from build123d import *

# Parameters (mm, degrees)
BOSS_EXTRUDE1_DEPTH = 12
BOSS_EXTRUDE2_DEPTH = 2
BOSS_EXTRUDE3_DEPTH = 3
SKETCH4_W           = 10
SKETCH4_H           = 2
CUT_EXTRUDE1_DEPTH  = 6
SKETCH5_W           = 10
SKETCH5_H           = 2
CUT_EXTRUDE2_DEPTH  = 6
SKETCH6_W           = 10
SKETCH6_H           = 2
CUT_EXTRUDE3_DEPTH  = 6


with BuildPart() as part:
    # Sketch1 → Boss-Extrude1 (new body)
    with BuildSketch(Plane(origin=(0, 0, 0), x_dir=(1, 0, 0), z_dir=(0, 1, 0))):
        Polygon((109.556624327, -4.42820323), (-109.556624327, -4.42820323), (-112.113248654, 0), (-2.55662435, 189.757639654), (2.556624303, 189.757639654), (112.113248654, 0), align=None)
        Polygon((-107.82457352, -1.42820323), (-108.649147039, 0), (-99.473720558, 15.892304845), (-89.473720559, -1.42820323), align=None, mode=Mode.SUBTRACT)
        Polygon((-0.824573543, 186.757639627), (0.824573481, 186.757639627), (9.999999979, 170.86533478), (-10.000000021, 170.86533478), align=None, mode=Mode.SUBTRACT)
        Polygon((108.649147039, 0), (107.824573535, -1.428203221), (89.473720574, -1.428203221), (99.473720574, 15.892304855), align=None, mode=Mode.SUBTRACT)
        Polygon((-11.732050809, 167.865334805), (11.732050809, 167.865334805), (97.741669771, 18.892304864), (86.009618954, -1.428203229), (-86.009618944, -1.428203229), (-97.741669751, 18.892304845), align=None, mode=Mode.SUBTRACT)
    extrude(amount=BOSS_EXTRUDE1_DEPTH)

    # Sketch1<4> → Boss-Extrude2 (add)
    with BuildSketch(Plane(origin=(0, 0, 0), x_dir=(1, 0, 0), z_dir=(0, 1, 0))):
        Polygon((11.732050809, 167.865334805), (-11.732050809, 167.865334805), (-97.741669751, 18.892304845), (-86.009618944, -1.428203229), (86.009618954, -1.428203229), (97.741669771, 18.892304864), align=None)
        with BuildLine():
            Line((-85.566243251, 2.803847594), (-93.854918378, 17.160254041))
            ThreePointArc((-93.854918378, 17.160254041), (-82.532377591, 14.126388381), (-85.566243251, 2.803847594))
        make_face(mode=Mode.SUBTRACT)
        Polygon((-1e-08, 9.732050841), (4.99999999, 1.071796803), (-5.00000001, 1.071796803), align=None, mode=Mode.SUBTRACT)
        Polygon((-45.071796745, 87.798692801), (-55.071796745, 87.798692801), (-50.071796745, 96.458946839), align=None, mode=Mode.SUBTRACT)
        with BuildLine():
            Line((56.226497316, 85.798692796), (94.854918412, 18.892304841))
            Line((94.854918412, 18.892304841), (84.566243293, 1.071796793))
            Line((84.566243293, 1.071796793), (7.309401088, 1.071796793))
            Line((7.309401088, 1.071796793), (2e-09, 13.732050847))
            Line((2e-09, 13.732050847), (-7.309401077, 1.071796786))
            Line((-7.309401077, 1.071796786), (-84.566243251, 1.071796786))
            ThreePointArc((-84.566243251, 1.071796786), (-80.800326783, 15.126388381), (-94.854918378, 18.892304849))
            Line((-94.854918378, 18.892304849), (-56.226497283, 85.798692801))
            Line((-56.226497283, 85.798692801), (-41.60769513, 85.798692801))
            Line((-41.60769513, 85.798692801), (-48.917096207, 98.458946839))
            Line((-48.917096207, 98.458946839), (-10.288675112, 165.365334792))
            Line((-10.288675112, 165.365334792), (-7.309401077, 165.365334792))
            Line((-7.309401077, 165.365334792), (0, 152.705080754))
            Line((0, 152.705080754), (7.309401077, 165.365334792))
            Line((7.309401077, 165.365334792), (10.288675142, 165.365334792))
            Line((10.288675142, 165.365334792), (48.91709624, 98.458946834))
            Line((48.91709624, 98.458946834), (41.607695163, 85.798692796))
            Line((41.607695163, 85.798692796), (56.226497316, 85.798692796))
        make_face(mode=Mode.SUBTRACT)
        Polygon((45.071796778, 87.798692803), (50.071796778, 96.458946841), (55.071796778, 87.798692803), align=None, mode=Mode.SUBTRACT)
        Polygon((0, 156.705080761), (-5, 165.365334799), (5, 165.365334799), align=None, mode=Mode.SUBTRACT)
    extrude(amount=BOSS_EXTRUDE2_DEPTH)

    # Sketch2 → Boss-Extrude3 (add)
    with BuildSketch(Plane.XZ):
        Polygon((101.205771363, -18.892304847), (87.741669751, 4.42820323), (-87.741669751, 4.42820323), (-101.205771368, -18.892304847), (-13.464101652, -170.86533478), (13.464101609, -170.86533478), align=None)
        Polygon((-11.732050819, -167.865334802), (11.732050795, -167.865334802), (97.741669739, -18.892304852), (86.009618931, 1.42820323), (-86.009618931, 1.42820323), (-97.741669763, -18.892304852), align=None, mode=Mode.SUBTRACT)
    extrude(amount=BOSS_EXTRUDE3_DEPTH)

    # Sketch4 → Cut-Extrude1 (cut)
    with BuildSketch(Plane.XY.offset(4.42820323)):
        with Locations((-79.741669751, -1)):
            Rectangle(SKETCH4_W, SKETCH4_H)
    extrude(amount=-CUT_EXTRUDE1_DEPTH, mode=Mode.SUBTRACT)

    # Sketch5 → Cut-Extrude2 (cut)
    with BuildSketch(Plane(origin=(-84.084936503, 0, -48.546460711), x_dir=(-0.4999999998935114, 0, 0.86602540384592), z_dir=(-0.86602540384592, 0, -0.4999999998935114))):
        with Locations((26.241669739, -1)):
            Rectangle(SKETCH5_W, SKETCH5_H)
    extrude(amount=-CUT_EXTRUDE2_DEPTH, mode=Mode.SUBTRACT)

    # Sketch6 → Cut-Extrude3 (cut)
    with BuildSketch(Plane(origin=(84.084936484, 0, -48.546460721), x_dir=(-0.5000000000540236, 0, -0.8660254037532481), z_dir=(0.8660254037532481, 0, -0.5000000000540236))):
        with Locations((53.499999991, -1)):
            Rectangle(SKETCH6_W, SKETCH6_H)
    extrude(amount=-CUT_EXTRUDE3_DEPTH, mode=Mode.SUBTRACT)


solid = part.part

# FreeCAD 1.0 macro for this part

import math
import FreeCAD as App
import Part
import Sketcher

V = App.Vector
Q = App.Units.Quantity

doc = App.newDocument("Part")
body = doc.addObject("PartDesign::Body", "Body")

sketch1 = body.newObject("Sketcher::SketchObject", "Sketch")
sketch1.AttachmentSupport = (doc.getObject("XZ_Plane"), [""])
sketch1.MapMode = "FlatFace"
sketch1.addGeometry([
    Part.LineSegment(V(-109.6, 4.4, 0), V(109.6, 4.4, 0)),
    Part.LineSegment(V(109.6, 4.4, 0), V(112.1, 0, 0)),
    Part.LineSegment(V(112.1, 0, 0), V(2.6, -189.8, 0)),
    Part.LineSegment(V(2.6, -189.8, 0), V(-2.6, -189.8, 0)),
    Part.LineSegment(V(-2.6, -189.8, 0), V(-112.1, 0, 0)),
    Part.LineSegment(V(-112.1, 0, 0), V(-109.6, 4.4, 0)),
    Part.LineSegment(V(108.6, 0, 0), V(107.8, 1.4, 0)),
    Part.LineSegment(V(107.8, 1.4, 0), V(89.5, 1.4, 0)),
    Part.LineSegment(V(89.5, 1.4, 0), V(99.5, -15.9, 0)),
    Part.LineSegment(V(99.5, -15.9, 0), V(108.6, 0, 0)),
    Part.LineSegment(V(-11.7, -167.9, 0), V(11.7, -167.9, 0)),
    Part.LineSegment(V(11.7, -167.9, 0), V(97.7, -18.9, 0)),
    Part.LineSegment(V(97.7, -18.9, 0), V(86, 1.4, 0)),
    Part.LineSegment(V(86, 1.4, 0), V(-86, 1.4, 0)),
    Part.LineSegment(V(-86, 1.4, 0), V(-97.7, -18.9, 0)),
    Part.LineSegment(V(-97.7, -18.9, 0), V(-11.7, -167.9, 0)),
    Part.LineSegment(V(-107.8, 1.4, 0), V(-108.6, 0, 0)),
    Part.LineSegment(V(-108.6, 0, 0), V(-99.5, -15.9, 0)),
    Part.LineSegment(V(-99.5, -15.9, 0), V(-89.5, 1.4, 0)),
    Part.LineSegment(V(-89.5, 1.4, 0), V(-107.8, 1.4, 0)),
    Part.LineSegment(V(-0.8, -186.8, 0), V(0.8, -186.8, 0)),
    Part.LineSegment(V(0.8, -186.8, 0), V(10, -170.9, 0)),
    Part.LineSegment(V(10, -170.9, 0), V(-10, -170.9, 0)),
    Part.LineSegment(V(-10, -170.9, 0), V(-0.8, -186.8, 0)),
], False)
sketch1.addConstraint([
    Sketcher.Constraint("Coincident", 0, 2, 1, 1),
    Sketcher.Constraint("Coincident", 1, 2, 2, 1),
    Sketcher.Constraint("Coincident", 2, 2, 3, 1),
    Sketcher.Constraint("Coincident", 3, 2, 4, 1),
    Sketcher.Constraint("Coincident", 4, 2, 5, 1),
    Sketcher.Constraint("Coincident", 5, 2, 0, 1),
    Sketcher.Constraint("Coincident", 6, 2, 7, 1),
    Sketcher.Constraint("Coincident", 7, 2, 8, 1),
    Sketcher.Constraint("Coincident", 8, 2, 9, 1),
    Sketcher.Constraint("Coincident", 9, 2, 6, 1),
    Sketcher.Constraint("Coincident", 10, 2, 11, 1),
    Sketcher.Constraint("Coincident", 11, 2, 12, 1),
    Sketcher.Constraint("Coincident", 12, 2, 13, 1),
    Sketcher.Constraint("Coincident", 13, 2, 14, 1),
    Sketcher.Constraint("Coincident", 14, 2, 15, 1),
    Sketcher.Constraint("Coincident", 15, 2, 10, 1),
    Sketcher.Constraint("Coincident", 16, 2, 17, 1),
    Sketcher.Constraint("Coincident", 17, 2, 18, 1),
    Sketcher.Constraint("Coincident", 18, 2, 19, 1),
    Sketcher.Constraint("Coincident", 19, 2, 16, 1),
    Sketcher.Constraint("Coincident", 20, 2, 21, 1),
    Sketcher.Constraint("Coincident", 21, 2, 22, 1),
    Sketcher.Constraint("Coincident", 22, 2, 23, 1),
    Sketcher.Constraint("Coincident", 23, 2, 20, 1),
    Sketcher.Constraint("Horizontal", 0),
    Sketcher.Constraint("Horizontal", 3),
    Sketcher.Constraint("Horizontal", 7),
    Sketcher.Constraint("Horizontal", 10),
    Sketcher.Constraint("Horizontal", 13),
    Sketcher.Constraint("Horizontal", 19),
    Sketcher.Constraint("Horizontal", 20),
    Sketcher.Constraint("Horizontal", 22),
    Sketcher.Constraint("Symmetric", 1, 2, 4, 2, -1, 1),
    Sketcher.Constraint("Symmetric", 9, 2, 16, 2, -1, 1),
    Sketcher.Constraint("Symmetric", 11, 2, 14, 2, -2),
    Sketcher.Constraint("Symmetric", 8, 2, 17, 2, -2),
    Sketcher.Constraint("Symmetric", 7, 2, 18, 2, -2),
    Sketcher.Constraint("PointOnObject", 1, 2, -1),
    Sketcher.Constraint("PointOnObject", 9, 2, -1),
    Sketcher.Constraint("Parallel", 1, 4),
    Sketcher.Constraint("Parallel", 2, 5),
    Sketcher.Constraint("Parallel", 4, 6),
    Sketcher.Constraint("Parallel", 6, 8),
    Sketcher.Constraint("Parallel", 5, 9),
    Sketcher.Constraint("Parallel", 9, 11),
    Sketcher.Constraint("Parallel", 8, 12),
    Sketcher.Constraint("Parallel", 11, 14),
    Sketcher.Constraint("Parallel", 12, 15),
    Sketcher.Constraint("Parallel", 14, 16),
    Sketcher.Constraint("Parallel", 15, 17),
    Sketcher.Constraint("Parallel", 18, 21),
    Sketcher.Constraint("Parallel", 17, 23),
    Sketcher.Constraint("Horizontal", 7, 2, 12, 2),
    Sketcher.Constraint("Equal", 17, 21),
    Sketcher.Constraint("DistanceX", 22, 2, 22, 1, 20.0),
    Sketcher.Constraint("Angle", 1, Q("-60 deg")),
    Sketcher.Constraint("Distance", 8, 20.0),
    Sketcher.Constraint("DistanceX", -1, 1, 21, 2, 10.0),
    Sketcher.Constraint("DistanceX", 2, 2, 0, 2, 107.0),
    Sketcher.Constraint("DistanceY", 6, 2, 0, 2, 3.0),
    Sketcher.Constraint("DistanceY", 11, 2, 8, 2, 3.0),
    Sketcher.Constraint("DistanceY", 2, 2, 20, 2, 3.0),
    Sketcher.Constraint("DistanceY", 21, 2, 10, 2, 3.0),
    Sketcher.Constraint("DistanceX", 10, 1, 10, 2, 23.464102),
    Sketcher.Constraint("DistanceX", 0, 1, 0, 2, 219.113249),
    Sketcher.Constraint("DistanceX", 9, 2, 1, 2, 3.464102),
    Sketcher.Constraint("DistanceX", 12, 2, 7, 2, 3.464102),
])
pad1 = body.newObject("PartDesign::Pad", "Pad")
pad1.Profile = sketch1
pad1.Length = 12
pad1.Reversed = True

sketch2 = body.newObject("Sketcher::SketchObject", "Sketch001")
sketch2.AttachmentSupport = (doc.getObject("XZ_Plane"), [""])
sketch2.MapMode = "FlatFace"
sketch2.addGeometry([
    Part.LineSegment(V(11.7, -167.9, 0), V(-11.7, -167.9, 0)),
    Part.LineSegment(V(-11.7, -167.9, 0), V(-97.7, -18.9, 0)),
    Part.LineSegment(V(-97.7, -18.9, 0), V(-86, 1.4, 0)),
    Part.LineSegment(V(-86, 1.4, 0), V(86, 1.4, 0)),
    Part.LineSegment(V(86, 1.4, 0), V(97.7, -18.9, 0)),
    Part.LineSegment(V(97.7, -18.9, 0), V(11.7, -167.9, 0)),
    Part.ArcOfCircle(Part.Circle(V(-89.7, -10, 0), V(0, 0, 1), 8.3), math.radians(-120), math.radians(60)),
    Part.LineSegment(V(-85.6, -2.8, 0), V(-93.9, -17.2, 0)),
    Part.LineSegment(V(-5, -1.1, 0), V(0, -9.7, 0)),
    Part.LineSegment(V(0, -9.7, 0), V(5, -1.1, 0)),
    Part.LineSegment(V(5, -1.1, 0), V(-5, -1.1, 0)),
    Part.LineSegment(V(41.6, -85.8, 0), V(56.2, -85.8, 0)),
    Part.LineSegment(V(56.2, -85.8, 0), V(94.9, -18.9, 0)),
    Part.LineSegment(V(94.9, -18.9, 0), V(84.6, -1.1, 0)),
    Part.LineSegment(V(84.6, -1.1, 0), V(7.3, -1.1, 0)),
    Part.LineSegment(V(7.3, -1.1, 0), V(0, -13.7, 0)),
    Part.LineSegment(V(0, -13.7, 0), V(-7.3, -1.1, 0)),
    Part.LineSegment(V(-7.3, -1.1, 0), V(-84.6, -1.1, 0)),
    Part.ArcOfCircle(Part.Circle(V(-89.7, -10, 0), V(0, 0, 1), 10.3), math.radians(-120), math.radians(60)),
    Part.LineSegment(V(-94.9, -18.9, 0), V(-56.2, -85.8, 0)),
    Part.LineSegment(V(-56.2, -85.8, 0), V(-41.6, -85.8, 0)),
    Part.LineSegment(V(-41.6, -85.8, 0), V(-48.9, -98.5, 0)),
    Part.LineSegment(V(-48.9, -98.5, 0), V(-10.3, -165.4, 0)),
    Part.LineSegment(V(-10.3, -165.4, 0), V(-7.3, -165.4, 0)),
    Part.LineSegment(V(-7.3, -165.4, 0), V(0, -152.7, 0)),
    Part.LineSegment(V(0, -152.7, 0), V(7.3, -165.4, 0)),
    Part.LineSegment(V(7.3, -165.4, 0), V(10.3, -165.4, 0)),
    Part.LineSegment(V(10.3, -165.4, 0), V(48.9, -98.5, 0)),
    Part.LineSegment(V(48.9, -98.5, 0), V(41.6, -85.8, 0)),
    Part.LineSegment(V(-50.1, -96.5, 0), V(-45.1, -87.8, 0)),
    Part.LineSegment(V(-45.1, -87.8, 0), V(-55.1, -87.8, 0)),
    Part.LineSegment(V(-55.1, -87.8, 0), V(-50.1, -96.5, 0)),
    Part.LineSegment(V(5, -165.4, 0), V(0, -156.7, 0)),
    Part.LineSegment(V(0, -156.7, 0), V(-5, -165.4, 0)),
    Part.LineSegment(V(-5, -165.4, 0), V(5, -165.4, 0)),
    Part.LineSegment(V(55.1, -87.8, 0), V(45.1, -87.8, 0)),
    Part.LineSegment(V(45.1, -87.8, 0), V(50.1, -96.5, 0)),
    Part.LineSegment(V(50.1, -96.5, 0), V(55.1, -87.8, 0)),
], False)
sketch2.addConstraint([
    Sketcher.Constraint("Coincident", 0, 2, 1, 1),
    Sketcher.Constraint("Coincident", 1, 2, 2, 1),
    Sketcher.Constraint("Coincident", 2, 2, 3, 1),
    Sketcher.Constraint("Coincident", 3, 2, 4, 1),
    Sketcher.Constraint("Coincident", 4, 2, 5, 1),
    Sketcher.Constraint("Coincident", 5, 2, 0, 1),
    Sketcher.Constraint("Coincident", 6, 1, 7, 2),
    Sketcher.Constraint("Coincident", 7, 1, 6, 2),
    Sketcher.Constraint("Coincident", 8, 2, 9, 1),
    Sketcher.Constraint("Coincident", 9, 2, 10, 1),
    Sketcher.Constraint("Coincident", 10, 2, 8, 1),
    Sketcher.Constraint("Coincident", 11, 2, 12, 1),
    Sketcher.Constraint("Coincident", 12, 2, 13, 1),
    Sketcher.Constraint("Coincident", 13, 2, 14, 1),
    Sketcher.Constraint("Coincident", 14, 2, 15, 1),
    Sketcher.Constraint("Coincident", 15, 2, 16, 1),
    Sketcher.Constraint("Coincident", 16, 2, 17, 1),
    Sketcher.Constraint("Coincident", 17, 2, 18, 2),
    Sketcher.Constraint("Coincident", 18, 1, 19, 1),
    Sketcher.Constraint("Coincident", 19, 2, 20, 1),
    Sketcher.Constraint("Coincident", 20, 2, 21, 1),
    Sketcher.Constraint("Coincident", 21, 2, 22, 1),
    Sketcher.Constraint("Coincident", 22, 2, 23, 1),
    Sketcher.Constraint("Coincident", 23, 2, 24, 1),
    Sketcher.Constraint("Coincident", 24, 2, 25, 1),
    Sketcher.Constraint("Coincident", 25, 2, 26, 1),
    Sketcher.Constraint("Coincident", 26, 2, 27, 1),
    Sketcher.Constraint("Coincident", 27, 2, 28, 1),
    Sketcher.Constraint("Coincident", 28, 2, 11, 1),
    Sketcher.Constraint("Coincident", 29, 2, 30, 1),
    Sketcher.Constraint("Coincident", 30, 2, 31, 1),
    Sketcher.Constraint("Coincident", 31, 2, 29, 1),
    Sketcher.Constraint("Coincident", 32, 2, 33, 1),
    Sketcher.Constraint("Coincident", 33, 2, 34, 1),
    Sketcher.Constraint("Coincident", 34, 2, 32, 1),
    Sketcher.Constraint("Coincident", 35, 2, 36, 1),
    Sketcher.Constraint("Coincident", 36, 2, 37, 1),
    Sketcher.Constraint("Coincident", 37, 2, 35, 1),
    Sketcher.Constraint("Horizontal", 0),
    Sketcher.Constraint("Horizontal", 3),
    Sketcher.Constraint("Horizontal", 10),
    Sketcher.Constraint("Horizontal", 11),
    Sketcher.Constraint("Horizontal", 14),
    Sketcher.Constraint("Horizontal", 17),
    Sketcher.Constraint("Horizontal", 20),
    Sketcher.Constraint("Horizontal", 23),
    Sketcher.Constraint("Horizontal", 26),
    Sketcher.Constraint("Horizontal", 30),
    Sketcher.Constraint("Horizontal", 34),
    Sketcher.Constraint("Horizontal", 35),
    Sketcher.Constraint("Coincident", 18, 3, 6, 3),
    Sketcher.Constraint("Symmetric", 1, 2, 4, 2, -2),
    Sketcher.Constraint("Symmetric", 14, 2, 16, 2, -2),
    Sketcher.Constraint("Symmetric", 12, 2, 18, 1, -2),
    Sketcher.Constraint("Symmetric", 11, 2, 19, 2, -2),
    Sketcher.Constraint("Symmetric", 23, 2, 25, 2, -2),
    Sketcher.Constraint("Symmetric", 21, 2, 27, 2, -2),
    Sketcher.Constraint("Symmetric", 29, 2, 35, 2, -2),
    Sketcher.Constraint("Symmetric", 31, 2, 36, 2, -2),
    Sketcher.Constraint("PointOnObject", 8, 2, -2),
    Sketcher.Constraint("PointOnObject", 15, 2, -2),
    Sketcher.Constraint("PointOnObject", 24, 2, -2),
    Sketcher.Constraint("PointOnObject", 32, 2, -2),
    Sketcher.Constraint("Parallel", 1, 4),
    Sketcher.Constraint("Parallel", 2, 5),
    Sketcher.Constraint("Parallel", 5, 7),
    Sketcher.Constraint("Parallel", 4, 8),
    Sketcher.Constraint("Parallel", 7, 9),
    Sketcher.Constraint("Parallel", 9, 12),
    Sketcher.Constraint("Parallel", 8, 13),
    Sketcher.Constraint("Parallel", 12, 15),
    Sketcher.Constraint("Parallel", 13, 16),
    Sketcher.Constraint("Parallel", 15, 21),
    Sketcher.Constraint("Parallel", 19, 22),
    Sketcher.Constraint("Parallel", 21, 24),
    Sketcher.Constraint("Parallel", 24, 27),
    Sketcher.Constraint("Parallel", 25, 28),
    Sketcher.Constraint("Parallel", 27, 29),
    Sketcher.Constraint("Parallel", 28, 31),
    Sketcher.Constraint("Parallel", 31, 32),
    Sketcher.Constraint("Parallel", 29, 33),
    Sketcher.Constraint("Parallel", 33, 37),
    Sketcher.Constraint("Horizontal", 4, 2, 12, 2),
    Sketcher.Constraint("Horizontal", 10, 2, 13, 2),
    Sketcher.Constraint("Horizontal", 26, 2, 33, 2),
    Sketcher.Constraint("Vertical", 16, 2, 23, 2),
    Sketcher.Constraint("Vertical", 10, 2, 33, 2),
    Sketcher.Constraint("Equal", 14, 17),
    Sketcher.Constraint("Equal", 10, 30),
    Sketcher.Constraint("Equal", 16, 21),
    Sketcher.Constraint("Equal", 19, 22),
    Sketcher.Constraint("DistanceX", 10, 2, 10, 1, 10.0),
    Sketcher.Constraint("Angle", 1, Q("120 deg")),
    Sketcher.Constraint("DistanceY", 15, 2, 8, 2, 4.0),
    Sketcher.Constraint("DistanceX", 7, 1, 17, 2, 1.0),
    Sketcher.Constraint("DistanceX", 18, 1, 6, 1, 1.0),
    Sketcher.Constraint("DistanceY", 29, 2, 20, 2, 2.0),
    Sketcher.Constraint("DistanceY", 9, 2, 3, 2, 2.5),
    Sketcher.Constraint("DistanceY", 0, 2, 22, 2, 2.5),
    Sketcher.Constraint("DistanceY", 6, 3, 8, 2, 0.25),
    Sketcher.Constraint("DistanceX", 0, 2, 0, 1, 23.464102),
    Sketcher.Constraint("Radius", 6, 8.288675),
    Sketcher.Constraint("DistanceX", 6, 3, 3, 2, 175.7202),
    Sketcher.Constraint("DistanceX", 6, 1, 2, 2, 7.845299),
    Sketcher.Constraint("DistanceX", 19, 2, 21, 2, 7.309401),
    Sketcher.Constraint("DistanceX", 29, 2, 20, 2, 3.464102),
    Sketcher.Constraint("DistanceY", 6, 3, -1, 1, 9.982051),
])
pad2 = body.newObject("PartDesign::Pad", "Pad001")
pad2.Profile = sketch2
pad2.Length = 2
pad2.Reversed = True

sketch3 = body.newObject("Sketcher::SketchObject", "Sketch002")
sketch3.AttachmentSupport = (doc.getObject("XZ_Plane"), [""])
sketch3.MapMode = "FlatFace"
sketch3.addGeometry([
    Part.LineSegment(V(101, -19, 0), V(88, 4, 0)),
    Part.LineSegment(V(88, 4, 0), V(-88, 4, 0)),
    Part.LineSegment(V(-88, 4, 0), V(-101, -19, 0)),
    Part.LineSegment(V(-101, -19, 0), V(-13, -171, 0)),
    Part.LineSegment(V(-13, -171, 0), V(13, -171, 0)),
    Part.LineSegment(V(13, -171, 0), V(101, -19, 0)),
    Part.LineSegment(V(12, -168, 0), V(-12, -168, 0)),
    Part.LineSegment(V(-12, -168, 0), V(-98, -19, 0)),
    Part.LineSegment(V(-98, -19, 0), V(-86, 1, 0)),
    Part.LineSegment(V(-86, 1, 0), V(86, 1, 0)),
    Part.LineSegment(V(86, 1, 0), V(98, -19, 0)),
    Part.LineSegment(V(98, -19, 0), V(12, -168, 0)),
], False)
sketch3.addConstraint([
    Sketcher.Constraint("Coincident", 0, 2, 1, 1),
    Sketcher.Constraint("Coincident", 1, 2, 2, 1),
    Sketcher.Constraint("Coincident", 2, 2, 3, 1),
    Sketcher.Constraint("Coincident", 3, 2, 4, 1),
    Sketcher.Constraint("Coincident", 4, 2, 5, 1),
    Sketcher.Constraint("Coincident", 5, 2, 0, 1),
    Sketcher.Constraint("Coincident", 6, 2, 7, 1),
    Sketcher.Constraint("Coincident", 7, 2, 8, 1),
    Sketcher.Constraint("Coincident", 8, 2, 9, 1),
    Sketcher.Constraint("Coincident", 9, 2, 10, 1),
    Sketcher.Constraint("Coincident", 10, 2, 11, 1),
    Sketcher.Constraint("Coincident", 11, 2, 6, 1),
    Sketcher.Constraint("Horizontal", 1),
    Sketcher.Constraint("Horizontal", 4),
    Sketcher.Constraint("Horizontal", 6),
    Sketcher.Constraint("Horizontal", 9),
    Sketcher.Constraint("Symmetric", 2, 2, 5, 2, -2),
    Sketcher.Constraint("Symmetric", 7, 2, 10, 2, -2),
    Sketcher.Constraint("Parallel", 0, 3),
    Sketcher.Constraint("Parallel", 2, 5),
    Sketcher.Constraint("Parallel", 3, 7),
    Sketcher.Constraint("Parallel", 5, 8),
    Sketcher.Constraint("Parallel", 7, 10),
    Sketcher.Constraint("Parallel", 8, 11),
    Sketcher.Constraint("Horizontal", 5, 2, 7, 2),
    Sketcher.Constraint("Equal", 0, 2),
    Sketcher.Constraint("Angle", 0, Q("120 deg")),
    Sketcher.Constraint("DistanceY", 3, 2, 6, 2, 3.0),
    Sketcher.Constraint("DistanceX", 7, 2, 1, 2, 10.0),
    Sketcher.Constraint("DistanceY", 8, 2, 1, 2, 3.0),
    Sketcher.Constraint("DistanceX", 6, 2, 6, 1, 23.464102),
    Sketcher.Constraint("Distance", 8, 23.464102),
    Sketcher.Constraint("DistanceX", 1, 2, 1, 1, 175.48334),
    Sketcher.Constraint("DistanceY", -1, 1, 0, 2, 4.428203),
])
pad3 = body.newObject("PartDesign::Pad", "Pad002")
pad3.Profile = sketch3
pad3.Length = 3

sketch4 = body.newObject("Sketcher::SketchObject", "Sketch003")
sketch4.AttachmentSupport = (doc.getObject("XY_Plane"), [""])
sketch4.MapMode = "FlatFace"
sketch4.AttachmentOffset = App.Placement(V(0, 0, 4.428203), App.Rotation())
sketch4.addGeometry([
    Part.LineSegment(V(-84.7, 0, 0), V(-84.7, -2, 0)),
    Part.LineSegment(V(-84.7, -2, 0), V(-74.7, -2, 0)),
    Part.LineSegment(V(-74.7, -2, 0), V(-74.7, 0, 0)),
    Part.LineSegment(V(-74.7, 0, 0), V(-84.7, 0, 0)),
], False)
sketch4.addConstraint([
    Sketcher.Constraint("Coincident", 0, 2, 1, 1),
    Sketcher.Constraint("Coincident", 1, 2, 2, 1),
    Sketcher.Constraint("Coincident", 2, 2, 3, 1),
    Sketcher.Constraint("Coincident", 3, 2, 0, 1),
    Sketcher.Constraint("Vertical", 0),
    Sketcher.Constraint("Horizontal", 1),
    Sketcher.Constraint("Vertical", 2),
    Sketcher.Constraint("Horizontal", 3),
    Sketcher.Constraint("PointOnObject", 2, 2, -1),
    Sketcher.Constraint("DistanceX", 1, 1, 1, 2, 10.0),
    Sketcher.Constraint("DistanceY", 0, 2, 0, 1, 2.0),
    Sketcher.Constraint("DistanceX", 0, 2, -1, 1, 84.74167),
])
pocket1 = body.newObject("PartDesign::Pocket", "Pocket")
pocket1.Profile = sketch4
pocket1.Length = 6

sketch5 = body.newObject("Sketcher::SketchObject", "Sketch004")
sketch5.Placement = App.Placement(V(-84.084937, 0, -48.546461), App.Rotation(V(-0.5, 0, 0.866025404), V(0, 1, 0), V(-0.866025404, 0, -0.5), "ZXY"))
sketch5.addGeometry([
    Part.LineSegment(V(21.2, 0, 0), V(21.2, -2, 0)),
    Part.LineSegment(V(21.2, -2, 0), V(31.2, -2, 0)),
    Part.LineSegment(V(31.2, -2, 0), V(31.2, 0, 0)),
    Part.LineSegment(V(31.2, 0, 0), V(21.2, 0, 0)),
], False)
sketch5.addConstraint([
    Sketcher.Constraint("Coincident", 0, 2, 1, 1),
    Sketcher.Constraint("Coincident", 1, 2, 2, 1),
    Sketcher.Constraint("Coincident", 2, 2, 3, 1),
    Sketcher.Constraint("Coincident", 3, 2, 0, 1),
    Sketcher.Constraint("Vertical", 0),
    Sketcher.Constraint("Horizontal", 1),
    Sketcher.Constraint("Vertical", 2),
    Sketcher.Constraint("Horizontal", 3),
    Sketcher.Constraint("PointOnObject", 2, 2, -1),
    Sketcher.Constraint("DistanceX", 1, 1, 1, 2, 10.0),
    Sketcher.Constraint("DistanceY", 0, 2, 0, 1, 2.0),
    Sketcher.Constraint("DistanceX", -1, 1, 0, 2, 21.24167),
])
pocket2 = body.newObject("PartDesign::Pocket", "Pocket001")
pocket2.Profile = sketch5
pocket2.Length = 6

sketch6 = body.newObject("Sketcher::SketchObject", "Sketch005")
sketch6.Placement = App.Placement(V(84.084936, 0, -48.546461), App.Rotation(V(-0.5, 0, -0.866025404), V(0, 1, 0), V(0.866025404, 0, -0.5), "ZXY"))
sketch6.addGeometry([
    Part.LineSegment(V(48.5, 0, 0), V(48.5, -2, 0)),
    Part.LineSegment(V(48.5, -2, 0), V(58.5, -2, 0)),
    Part.LineSegment(V(58.5, -2, 0), V(58.5, 0, 0)),
    Part.LineSegment(V(58.5, 0, 0), V(48.5, 0, 0)),
], False)
sketch6.addConstraint([
    Sketcher.Constraint("Coincident", 0, 2, 1, 1),
    Sketcher.Constraint("Coincident", 1, 2, 2, 1),
    Sketcher.Constraint("Coincident", 2, 2, 3, 1),
    Sketcher.Constraint("Coincident", 3, 2, 0, 1),
    Sketcher.Constraint("Vertical", 0),
    Sketcher.Constraint("Horizontal", 1),
    Sketcher.Constraint("Vertical", 2),
    Sketcher.Constraint("Horizontal", 3),
    Sketcher.Constraint("PointOnObject", 2, 2, -1),
    Sketcher.Constraint("DistanceX", 1, 1, 1, 2, 10.0),
    Sketcher.Constraint("DistanceY", 0, 2, 0, 1, 2.0),
    Sketcher.Constraint("DistanceX", -1, 1, 0, 2, 48.5),
])
pocket3 = body.newObject("PartDesign::Pocket", "Pocket002")
pocket3.Profile = sketch6
pocket3.Length = 6

doc.recompute()
